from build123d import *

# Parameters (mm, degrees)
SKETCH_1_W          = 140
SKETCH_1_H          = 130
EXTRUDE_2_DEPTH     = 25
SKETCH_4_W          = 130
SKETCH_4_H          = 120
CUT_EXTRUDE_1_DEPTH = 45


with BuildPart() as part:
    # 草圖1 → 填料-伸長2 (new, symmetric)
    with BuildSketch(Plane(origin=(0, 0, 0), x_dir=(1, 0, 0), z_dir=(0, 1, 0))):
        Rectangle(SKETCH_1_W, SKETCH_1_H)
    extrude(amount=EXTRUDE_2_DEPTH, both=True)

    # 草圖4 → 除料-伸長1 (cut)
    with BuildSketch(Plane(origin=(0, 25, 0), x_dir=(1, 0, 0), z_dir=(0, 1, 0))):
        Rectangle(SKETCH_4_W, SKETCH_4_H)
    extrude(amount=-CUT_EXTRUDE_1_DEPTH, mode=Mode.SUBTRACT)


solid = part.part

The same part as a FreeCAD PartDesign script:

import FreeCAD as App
import Part
import Sketcher

doc = App.newDocument("Part")
body = doc.addObject("PartDesign::Body", "Body")

# Sketch on XZ plane
sketch1 = doc.addObject("Sketcher::SketchObject", "Sketch")
body.addObject(sketch1)
sketch1.AttachmentSupport = (doc.XZ_Plane, [""])
sketch1.MapMode = "FlatFace"
sketch1.addGeometry(Part.LineSegment(App.Vector(-70, -65, 0), App.Vector(-70, 65, 0)), False)
sketch1.addGeometry(Part.LineSegment(App.Vector(-70, 65, 0), App.Vector(70, 65, 0)), False)
sketch1.addGeometry(Part.LineSegment(App.Vector(70, 65, 0), App.Vector(70, -65, 0)), False)
sketch1.addGeometry(Part.LineSegment(App.Vector(70, -65, 0), App.Vector(-70, -65, 0)), False)
sketch1.addConstraint(Sketcher.Constraint("Coincident", 0, 2, 1, 1))
sketch1.addConstraint(Sketcher.Constraint("Coincident", 1, 2, 2, 1))
sketch1.addConstraint(Sketcher.Constraint("Coincident", 2, 2, 3, 1))
sketch1.addConstraint(Sketcher.Constraint("Coincident", 3, 2, 0, 1))
sketch1.addConstraint(Sketcher.Constraint("Vertical", 0))
sketch1.addConstraint(Sketcher.Constraint("Horizontal", 1))
sketch1.addConstraint(Sketcher.Constraint("Vertical", 2))
sketch1.addConstraint(Sketcher.Constraint("Horizontal", 3))
sketch1.addConstraint(Sketcher.Constraint("Symmetric", 0, 2, 2, 2, -1, 1))
sketch1.addConstraint(Sketcher.Constraint("DistanceX", 1, 1, 1, 2, 140.0))
sketch1.addConstraint(Sketcher.Constraint("DistanceY", 0, 1, 0, 2, 130.0))
pad1 = doc.addObject("PartDesign::Pad", "Pad")
body.addObject(pad1)
pad1.Profile = sketch1
pad1.Length = 50
pad1.Midplane = True

# Sketch on XZ plane
sketch2 = doc.addObject("Sketcher::SketchObject", "Sketch001")
body.addObject(sketch2)
sketch2.AttachmentSupport = (doc.XZ_Plane, [""])
sketch2.MapMode = "FlatFace"
sketch2.AttachmentOffset = App.Placement(App.Vector(0, 0, -25), App.Rotation())
sketch2.addGeometry(Part.LineSegment(App.Vector(-65, -60, 0), App.Vector(-65, 60, 0)), False)
sketch2.addGeometry(Part.LineSegment(App.Vector(-65, 60, 0), App.Vector(65, 60, 0)), False)
sketch2.addGeometry(Part.LineSegment(App.Vector(65, 60, 0), App.Vector(65, -60, 0)), False)
sketch2.addGeometry(Part.LineSegment(App.Vector(65, -60, 0), App.Vector(-65, -60, 0)), False)
sketch2.addConstraint(Sketcher.Constraint("Coincident", 0, 2, 1, 1))
sketch2.addConstraint(Sketcher.Constraint("Coincident", 1, 2, 2, 1))
sketch2.addConstraint(Sketcher.Constraint("Coincident", 2, 2, 3, 1))
sketch2.addConstraint(Sketcher.Constraint("Coincident", 3, 2, 0, 1))
sketch2.addConstraint(Sketcher.Constraint("Vertical", 0))
sketch2.addConstraint(Sketcher.Constraint("Horizontal", 1))
sketch2.addConstraint(Sketcher.Constraint("Vertical", 2))
sketch2.addConstraint(Sketcher.Constraint("Horizontal", 3))
sketch2.addConstraint(Sketcher.Constraint("Symmetric", 0, 2, 2, 2, -1, 1))
sketch2.addConstraint(Sketcher.Constraint("DistanceX", 1, 1, 1, 2, 130.0))
sketch2.addConstraint(Sketcher.Constraint("DistanceY", 0, 1, 0, 2, 120.0))
pocket1 = doc.addObject("PartDesign::Pocket", "Pocket")
body.addObject(pocket1)
pocket1.Profile = sketch2
pocket1.Length = 45
pocket1.Reversed = True

doc.recompute()
